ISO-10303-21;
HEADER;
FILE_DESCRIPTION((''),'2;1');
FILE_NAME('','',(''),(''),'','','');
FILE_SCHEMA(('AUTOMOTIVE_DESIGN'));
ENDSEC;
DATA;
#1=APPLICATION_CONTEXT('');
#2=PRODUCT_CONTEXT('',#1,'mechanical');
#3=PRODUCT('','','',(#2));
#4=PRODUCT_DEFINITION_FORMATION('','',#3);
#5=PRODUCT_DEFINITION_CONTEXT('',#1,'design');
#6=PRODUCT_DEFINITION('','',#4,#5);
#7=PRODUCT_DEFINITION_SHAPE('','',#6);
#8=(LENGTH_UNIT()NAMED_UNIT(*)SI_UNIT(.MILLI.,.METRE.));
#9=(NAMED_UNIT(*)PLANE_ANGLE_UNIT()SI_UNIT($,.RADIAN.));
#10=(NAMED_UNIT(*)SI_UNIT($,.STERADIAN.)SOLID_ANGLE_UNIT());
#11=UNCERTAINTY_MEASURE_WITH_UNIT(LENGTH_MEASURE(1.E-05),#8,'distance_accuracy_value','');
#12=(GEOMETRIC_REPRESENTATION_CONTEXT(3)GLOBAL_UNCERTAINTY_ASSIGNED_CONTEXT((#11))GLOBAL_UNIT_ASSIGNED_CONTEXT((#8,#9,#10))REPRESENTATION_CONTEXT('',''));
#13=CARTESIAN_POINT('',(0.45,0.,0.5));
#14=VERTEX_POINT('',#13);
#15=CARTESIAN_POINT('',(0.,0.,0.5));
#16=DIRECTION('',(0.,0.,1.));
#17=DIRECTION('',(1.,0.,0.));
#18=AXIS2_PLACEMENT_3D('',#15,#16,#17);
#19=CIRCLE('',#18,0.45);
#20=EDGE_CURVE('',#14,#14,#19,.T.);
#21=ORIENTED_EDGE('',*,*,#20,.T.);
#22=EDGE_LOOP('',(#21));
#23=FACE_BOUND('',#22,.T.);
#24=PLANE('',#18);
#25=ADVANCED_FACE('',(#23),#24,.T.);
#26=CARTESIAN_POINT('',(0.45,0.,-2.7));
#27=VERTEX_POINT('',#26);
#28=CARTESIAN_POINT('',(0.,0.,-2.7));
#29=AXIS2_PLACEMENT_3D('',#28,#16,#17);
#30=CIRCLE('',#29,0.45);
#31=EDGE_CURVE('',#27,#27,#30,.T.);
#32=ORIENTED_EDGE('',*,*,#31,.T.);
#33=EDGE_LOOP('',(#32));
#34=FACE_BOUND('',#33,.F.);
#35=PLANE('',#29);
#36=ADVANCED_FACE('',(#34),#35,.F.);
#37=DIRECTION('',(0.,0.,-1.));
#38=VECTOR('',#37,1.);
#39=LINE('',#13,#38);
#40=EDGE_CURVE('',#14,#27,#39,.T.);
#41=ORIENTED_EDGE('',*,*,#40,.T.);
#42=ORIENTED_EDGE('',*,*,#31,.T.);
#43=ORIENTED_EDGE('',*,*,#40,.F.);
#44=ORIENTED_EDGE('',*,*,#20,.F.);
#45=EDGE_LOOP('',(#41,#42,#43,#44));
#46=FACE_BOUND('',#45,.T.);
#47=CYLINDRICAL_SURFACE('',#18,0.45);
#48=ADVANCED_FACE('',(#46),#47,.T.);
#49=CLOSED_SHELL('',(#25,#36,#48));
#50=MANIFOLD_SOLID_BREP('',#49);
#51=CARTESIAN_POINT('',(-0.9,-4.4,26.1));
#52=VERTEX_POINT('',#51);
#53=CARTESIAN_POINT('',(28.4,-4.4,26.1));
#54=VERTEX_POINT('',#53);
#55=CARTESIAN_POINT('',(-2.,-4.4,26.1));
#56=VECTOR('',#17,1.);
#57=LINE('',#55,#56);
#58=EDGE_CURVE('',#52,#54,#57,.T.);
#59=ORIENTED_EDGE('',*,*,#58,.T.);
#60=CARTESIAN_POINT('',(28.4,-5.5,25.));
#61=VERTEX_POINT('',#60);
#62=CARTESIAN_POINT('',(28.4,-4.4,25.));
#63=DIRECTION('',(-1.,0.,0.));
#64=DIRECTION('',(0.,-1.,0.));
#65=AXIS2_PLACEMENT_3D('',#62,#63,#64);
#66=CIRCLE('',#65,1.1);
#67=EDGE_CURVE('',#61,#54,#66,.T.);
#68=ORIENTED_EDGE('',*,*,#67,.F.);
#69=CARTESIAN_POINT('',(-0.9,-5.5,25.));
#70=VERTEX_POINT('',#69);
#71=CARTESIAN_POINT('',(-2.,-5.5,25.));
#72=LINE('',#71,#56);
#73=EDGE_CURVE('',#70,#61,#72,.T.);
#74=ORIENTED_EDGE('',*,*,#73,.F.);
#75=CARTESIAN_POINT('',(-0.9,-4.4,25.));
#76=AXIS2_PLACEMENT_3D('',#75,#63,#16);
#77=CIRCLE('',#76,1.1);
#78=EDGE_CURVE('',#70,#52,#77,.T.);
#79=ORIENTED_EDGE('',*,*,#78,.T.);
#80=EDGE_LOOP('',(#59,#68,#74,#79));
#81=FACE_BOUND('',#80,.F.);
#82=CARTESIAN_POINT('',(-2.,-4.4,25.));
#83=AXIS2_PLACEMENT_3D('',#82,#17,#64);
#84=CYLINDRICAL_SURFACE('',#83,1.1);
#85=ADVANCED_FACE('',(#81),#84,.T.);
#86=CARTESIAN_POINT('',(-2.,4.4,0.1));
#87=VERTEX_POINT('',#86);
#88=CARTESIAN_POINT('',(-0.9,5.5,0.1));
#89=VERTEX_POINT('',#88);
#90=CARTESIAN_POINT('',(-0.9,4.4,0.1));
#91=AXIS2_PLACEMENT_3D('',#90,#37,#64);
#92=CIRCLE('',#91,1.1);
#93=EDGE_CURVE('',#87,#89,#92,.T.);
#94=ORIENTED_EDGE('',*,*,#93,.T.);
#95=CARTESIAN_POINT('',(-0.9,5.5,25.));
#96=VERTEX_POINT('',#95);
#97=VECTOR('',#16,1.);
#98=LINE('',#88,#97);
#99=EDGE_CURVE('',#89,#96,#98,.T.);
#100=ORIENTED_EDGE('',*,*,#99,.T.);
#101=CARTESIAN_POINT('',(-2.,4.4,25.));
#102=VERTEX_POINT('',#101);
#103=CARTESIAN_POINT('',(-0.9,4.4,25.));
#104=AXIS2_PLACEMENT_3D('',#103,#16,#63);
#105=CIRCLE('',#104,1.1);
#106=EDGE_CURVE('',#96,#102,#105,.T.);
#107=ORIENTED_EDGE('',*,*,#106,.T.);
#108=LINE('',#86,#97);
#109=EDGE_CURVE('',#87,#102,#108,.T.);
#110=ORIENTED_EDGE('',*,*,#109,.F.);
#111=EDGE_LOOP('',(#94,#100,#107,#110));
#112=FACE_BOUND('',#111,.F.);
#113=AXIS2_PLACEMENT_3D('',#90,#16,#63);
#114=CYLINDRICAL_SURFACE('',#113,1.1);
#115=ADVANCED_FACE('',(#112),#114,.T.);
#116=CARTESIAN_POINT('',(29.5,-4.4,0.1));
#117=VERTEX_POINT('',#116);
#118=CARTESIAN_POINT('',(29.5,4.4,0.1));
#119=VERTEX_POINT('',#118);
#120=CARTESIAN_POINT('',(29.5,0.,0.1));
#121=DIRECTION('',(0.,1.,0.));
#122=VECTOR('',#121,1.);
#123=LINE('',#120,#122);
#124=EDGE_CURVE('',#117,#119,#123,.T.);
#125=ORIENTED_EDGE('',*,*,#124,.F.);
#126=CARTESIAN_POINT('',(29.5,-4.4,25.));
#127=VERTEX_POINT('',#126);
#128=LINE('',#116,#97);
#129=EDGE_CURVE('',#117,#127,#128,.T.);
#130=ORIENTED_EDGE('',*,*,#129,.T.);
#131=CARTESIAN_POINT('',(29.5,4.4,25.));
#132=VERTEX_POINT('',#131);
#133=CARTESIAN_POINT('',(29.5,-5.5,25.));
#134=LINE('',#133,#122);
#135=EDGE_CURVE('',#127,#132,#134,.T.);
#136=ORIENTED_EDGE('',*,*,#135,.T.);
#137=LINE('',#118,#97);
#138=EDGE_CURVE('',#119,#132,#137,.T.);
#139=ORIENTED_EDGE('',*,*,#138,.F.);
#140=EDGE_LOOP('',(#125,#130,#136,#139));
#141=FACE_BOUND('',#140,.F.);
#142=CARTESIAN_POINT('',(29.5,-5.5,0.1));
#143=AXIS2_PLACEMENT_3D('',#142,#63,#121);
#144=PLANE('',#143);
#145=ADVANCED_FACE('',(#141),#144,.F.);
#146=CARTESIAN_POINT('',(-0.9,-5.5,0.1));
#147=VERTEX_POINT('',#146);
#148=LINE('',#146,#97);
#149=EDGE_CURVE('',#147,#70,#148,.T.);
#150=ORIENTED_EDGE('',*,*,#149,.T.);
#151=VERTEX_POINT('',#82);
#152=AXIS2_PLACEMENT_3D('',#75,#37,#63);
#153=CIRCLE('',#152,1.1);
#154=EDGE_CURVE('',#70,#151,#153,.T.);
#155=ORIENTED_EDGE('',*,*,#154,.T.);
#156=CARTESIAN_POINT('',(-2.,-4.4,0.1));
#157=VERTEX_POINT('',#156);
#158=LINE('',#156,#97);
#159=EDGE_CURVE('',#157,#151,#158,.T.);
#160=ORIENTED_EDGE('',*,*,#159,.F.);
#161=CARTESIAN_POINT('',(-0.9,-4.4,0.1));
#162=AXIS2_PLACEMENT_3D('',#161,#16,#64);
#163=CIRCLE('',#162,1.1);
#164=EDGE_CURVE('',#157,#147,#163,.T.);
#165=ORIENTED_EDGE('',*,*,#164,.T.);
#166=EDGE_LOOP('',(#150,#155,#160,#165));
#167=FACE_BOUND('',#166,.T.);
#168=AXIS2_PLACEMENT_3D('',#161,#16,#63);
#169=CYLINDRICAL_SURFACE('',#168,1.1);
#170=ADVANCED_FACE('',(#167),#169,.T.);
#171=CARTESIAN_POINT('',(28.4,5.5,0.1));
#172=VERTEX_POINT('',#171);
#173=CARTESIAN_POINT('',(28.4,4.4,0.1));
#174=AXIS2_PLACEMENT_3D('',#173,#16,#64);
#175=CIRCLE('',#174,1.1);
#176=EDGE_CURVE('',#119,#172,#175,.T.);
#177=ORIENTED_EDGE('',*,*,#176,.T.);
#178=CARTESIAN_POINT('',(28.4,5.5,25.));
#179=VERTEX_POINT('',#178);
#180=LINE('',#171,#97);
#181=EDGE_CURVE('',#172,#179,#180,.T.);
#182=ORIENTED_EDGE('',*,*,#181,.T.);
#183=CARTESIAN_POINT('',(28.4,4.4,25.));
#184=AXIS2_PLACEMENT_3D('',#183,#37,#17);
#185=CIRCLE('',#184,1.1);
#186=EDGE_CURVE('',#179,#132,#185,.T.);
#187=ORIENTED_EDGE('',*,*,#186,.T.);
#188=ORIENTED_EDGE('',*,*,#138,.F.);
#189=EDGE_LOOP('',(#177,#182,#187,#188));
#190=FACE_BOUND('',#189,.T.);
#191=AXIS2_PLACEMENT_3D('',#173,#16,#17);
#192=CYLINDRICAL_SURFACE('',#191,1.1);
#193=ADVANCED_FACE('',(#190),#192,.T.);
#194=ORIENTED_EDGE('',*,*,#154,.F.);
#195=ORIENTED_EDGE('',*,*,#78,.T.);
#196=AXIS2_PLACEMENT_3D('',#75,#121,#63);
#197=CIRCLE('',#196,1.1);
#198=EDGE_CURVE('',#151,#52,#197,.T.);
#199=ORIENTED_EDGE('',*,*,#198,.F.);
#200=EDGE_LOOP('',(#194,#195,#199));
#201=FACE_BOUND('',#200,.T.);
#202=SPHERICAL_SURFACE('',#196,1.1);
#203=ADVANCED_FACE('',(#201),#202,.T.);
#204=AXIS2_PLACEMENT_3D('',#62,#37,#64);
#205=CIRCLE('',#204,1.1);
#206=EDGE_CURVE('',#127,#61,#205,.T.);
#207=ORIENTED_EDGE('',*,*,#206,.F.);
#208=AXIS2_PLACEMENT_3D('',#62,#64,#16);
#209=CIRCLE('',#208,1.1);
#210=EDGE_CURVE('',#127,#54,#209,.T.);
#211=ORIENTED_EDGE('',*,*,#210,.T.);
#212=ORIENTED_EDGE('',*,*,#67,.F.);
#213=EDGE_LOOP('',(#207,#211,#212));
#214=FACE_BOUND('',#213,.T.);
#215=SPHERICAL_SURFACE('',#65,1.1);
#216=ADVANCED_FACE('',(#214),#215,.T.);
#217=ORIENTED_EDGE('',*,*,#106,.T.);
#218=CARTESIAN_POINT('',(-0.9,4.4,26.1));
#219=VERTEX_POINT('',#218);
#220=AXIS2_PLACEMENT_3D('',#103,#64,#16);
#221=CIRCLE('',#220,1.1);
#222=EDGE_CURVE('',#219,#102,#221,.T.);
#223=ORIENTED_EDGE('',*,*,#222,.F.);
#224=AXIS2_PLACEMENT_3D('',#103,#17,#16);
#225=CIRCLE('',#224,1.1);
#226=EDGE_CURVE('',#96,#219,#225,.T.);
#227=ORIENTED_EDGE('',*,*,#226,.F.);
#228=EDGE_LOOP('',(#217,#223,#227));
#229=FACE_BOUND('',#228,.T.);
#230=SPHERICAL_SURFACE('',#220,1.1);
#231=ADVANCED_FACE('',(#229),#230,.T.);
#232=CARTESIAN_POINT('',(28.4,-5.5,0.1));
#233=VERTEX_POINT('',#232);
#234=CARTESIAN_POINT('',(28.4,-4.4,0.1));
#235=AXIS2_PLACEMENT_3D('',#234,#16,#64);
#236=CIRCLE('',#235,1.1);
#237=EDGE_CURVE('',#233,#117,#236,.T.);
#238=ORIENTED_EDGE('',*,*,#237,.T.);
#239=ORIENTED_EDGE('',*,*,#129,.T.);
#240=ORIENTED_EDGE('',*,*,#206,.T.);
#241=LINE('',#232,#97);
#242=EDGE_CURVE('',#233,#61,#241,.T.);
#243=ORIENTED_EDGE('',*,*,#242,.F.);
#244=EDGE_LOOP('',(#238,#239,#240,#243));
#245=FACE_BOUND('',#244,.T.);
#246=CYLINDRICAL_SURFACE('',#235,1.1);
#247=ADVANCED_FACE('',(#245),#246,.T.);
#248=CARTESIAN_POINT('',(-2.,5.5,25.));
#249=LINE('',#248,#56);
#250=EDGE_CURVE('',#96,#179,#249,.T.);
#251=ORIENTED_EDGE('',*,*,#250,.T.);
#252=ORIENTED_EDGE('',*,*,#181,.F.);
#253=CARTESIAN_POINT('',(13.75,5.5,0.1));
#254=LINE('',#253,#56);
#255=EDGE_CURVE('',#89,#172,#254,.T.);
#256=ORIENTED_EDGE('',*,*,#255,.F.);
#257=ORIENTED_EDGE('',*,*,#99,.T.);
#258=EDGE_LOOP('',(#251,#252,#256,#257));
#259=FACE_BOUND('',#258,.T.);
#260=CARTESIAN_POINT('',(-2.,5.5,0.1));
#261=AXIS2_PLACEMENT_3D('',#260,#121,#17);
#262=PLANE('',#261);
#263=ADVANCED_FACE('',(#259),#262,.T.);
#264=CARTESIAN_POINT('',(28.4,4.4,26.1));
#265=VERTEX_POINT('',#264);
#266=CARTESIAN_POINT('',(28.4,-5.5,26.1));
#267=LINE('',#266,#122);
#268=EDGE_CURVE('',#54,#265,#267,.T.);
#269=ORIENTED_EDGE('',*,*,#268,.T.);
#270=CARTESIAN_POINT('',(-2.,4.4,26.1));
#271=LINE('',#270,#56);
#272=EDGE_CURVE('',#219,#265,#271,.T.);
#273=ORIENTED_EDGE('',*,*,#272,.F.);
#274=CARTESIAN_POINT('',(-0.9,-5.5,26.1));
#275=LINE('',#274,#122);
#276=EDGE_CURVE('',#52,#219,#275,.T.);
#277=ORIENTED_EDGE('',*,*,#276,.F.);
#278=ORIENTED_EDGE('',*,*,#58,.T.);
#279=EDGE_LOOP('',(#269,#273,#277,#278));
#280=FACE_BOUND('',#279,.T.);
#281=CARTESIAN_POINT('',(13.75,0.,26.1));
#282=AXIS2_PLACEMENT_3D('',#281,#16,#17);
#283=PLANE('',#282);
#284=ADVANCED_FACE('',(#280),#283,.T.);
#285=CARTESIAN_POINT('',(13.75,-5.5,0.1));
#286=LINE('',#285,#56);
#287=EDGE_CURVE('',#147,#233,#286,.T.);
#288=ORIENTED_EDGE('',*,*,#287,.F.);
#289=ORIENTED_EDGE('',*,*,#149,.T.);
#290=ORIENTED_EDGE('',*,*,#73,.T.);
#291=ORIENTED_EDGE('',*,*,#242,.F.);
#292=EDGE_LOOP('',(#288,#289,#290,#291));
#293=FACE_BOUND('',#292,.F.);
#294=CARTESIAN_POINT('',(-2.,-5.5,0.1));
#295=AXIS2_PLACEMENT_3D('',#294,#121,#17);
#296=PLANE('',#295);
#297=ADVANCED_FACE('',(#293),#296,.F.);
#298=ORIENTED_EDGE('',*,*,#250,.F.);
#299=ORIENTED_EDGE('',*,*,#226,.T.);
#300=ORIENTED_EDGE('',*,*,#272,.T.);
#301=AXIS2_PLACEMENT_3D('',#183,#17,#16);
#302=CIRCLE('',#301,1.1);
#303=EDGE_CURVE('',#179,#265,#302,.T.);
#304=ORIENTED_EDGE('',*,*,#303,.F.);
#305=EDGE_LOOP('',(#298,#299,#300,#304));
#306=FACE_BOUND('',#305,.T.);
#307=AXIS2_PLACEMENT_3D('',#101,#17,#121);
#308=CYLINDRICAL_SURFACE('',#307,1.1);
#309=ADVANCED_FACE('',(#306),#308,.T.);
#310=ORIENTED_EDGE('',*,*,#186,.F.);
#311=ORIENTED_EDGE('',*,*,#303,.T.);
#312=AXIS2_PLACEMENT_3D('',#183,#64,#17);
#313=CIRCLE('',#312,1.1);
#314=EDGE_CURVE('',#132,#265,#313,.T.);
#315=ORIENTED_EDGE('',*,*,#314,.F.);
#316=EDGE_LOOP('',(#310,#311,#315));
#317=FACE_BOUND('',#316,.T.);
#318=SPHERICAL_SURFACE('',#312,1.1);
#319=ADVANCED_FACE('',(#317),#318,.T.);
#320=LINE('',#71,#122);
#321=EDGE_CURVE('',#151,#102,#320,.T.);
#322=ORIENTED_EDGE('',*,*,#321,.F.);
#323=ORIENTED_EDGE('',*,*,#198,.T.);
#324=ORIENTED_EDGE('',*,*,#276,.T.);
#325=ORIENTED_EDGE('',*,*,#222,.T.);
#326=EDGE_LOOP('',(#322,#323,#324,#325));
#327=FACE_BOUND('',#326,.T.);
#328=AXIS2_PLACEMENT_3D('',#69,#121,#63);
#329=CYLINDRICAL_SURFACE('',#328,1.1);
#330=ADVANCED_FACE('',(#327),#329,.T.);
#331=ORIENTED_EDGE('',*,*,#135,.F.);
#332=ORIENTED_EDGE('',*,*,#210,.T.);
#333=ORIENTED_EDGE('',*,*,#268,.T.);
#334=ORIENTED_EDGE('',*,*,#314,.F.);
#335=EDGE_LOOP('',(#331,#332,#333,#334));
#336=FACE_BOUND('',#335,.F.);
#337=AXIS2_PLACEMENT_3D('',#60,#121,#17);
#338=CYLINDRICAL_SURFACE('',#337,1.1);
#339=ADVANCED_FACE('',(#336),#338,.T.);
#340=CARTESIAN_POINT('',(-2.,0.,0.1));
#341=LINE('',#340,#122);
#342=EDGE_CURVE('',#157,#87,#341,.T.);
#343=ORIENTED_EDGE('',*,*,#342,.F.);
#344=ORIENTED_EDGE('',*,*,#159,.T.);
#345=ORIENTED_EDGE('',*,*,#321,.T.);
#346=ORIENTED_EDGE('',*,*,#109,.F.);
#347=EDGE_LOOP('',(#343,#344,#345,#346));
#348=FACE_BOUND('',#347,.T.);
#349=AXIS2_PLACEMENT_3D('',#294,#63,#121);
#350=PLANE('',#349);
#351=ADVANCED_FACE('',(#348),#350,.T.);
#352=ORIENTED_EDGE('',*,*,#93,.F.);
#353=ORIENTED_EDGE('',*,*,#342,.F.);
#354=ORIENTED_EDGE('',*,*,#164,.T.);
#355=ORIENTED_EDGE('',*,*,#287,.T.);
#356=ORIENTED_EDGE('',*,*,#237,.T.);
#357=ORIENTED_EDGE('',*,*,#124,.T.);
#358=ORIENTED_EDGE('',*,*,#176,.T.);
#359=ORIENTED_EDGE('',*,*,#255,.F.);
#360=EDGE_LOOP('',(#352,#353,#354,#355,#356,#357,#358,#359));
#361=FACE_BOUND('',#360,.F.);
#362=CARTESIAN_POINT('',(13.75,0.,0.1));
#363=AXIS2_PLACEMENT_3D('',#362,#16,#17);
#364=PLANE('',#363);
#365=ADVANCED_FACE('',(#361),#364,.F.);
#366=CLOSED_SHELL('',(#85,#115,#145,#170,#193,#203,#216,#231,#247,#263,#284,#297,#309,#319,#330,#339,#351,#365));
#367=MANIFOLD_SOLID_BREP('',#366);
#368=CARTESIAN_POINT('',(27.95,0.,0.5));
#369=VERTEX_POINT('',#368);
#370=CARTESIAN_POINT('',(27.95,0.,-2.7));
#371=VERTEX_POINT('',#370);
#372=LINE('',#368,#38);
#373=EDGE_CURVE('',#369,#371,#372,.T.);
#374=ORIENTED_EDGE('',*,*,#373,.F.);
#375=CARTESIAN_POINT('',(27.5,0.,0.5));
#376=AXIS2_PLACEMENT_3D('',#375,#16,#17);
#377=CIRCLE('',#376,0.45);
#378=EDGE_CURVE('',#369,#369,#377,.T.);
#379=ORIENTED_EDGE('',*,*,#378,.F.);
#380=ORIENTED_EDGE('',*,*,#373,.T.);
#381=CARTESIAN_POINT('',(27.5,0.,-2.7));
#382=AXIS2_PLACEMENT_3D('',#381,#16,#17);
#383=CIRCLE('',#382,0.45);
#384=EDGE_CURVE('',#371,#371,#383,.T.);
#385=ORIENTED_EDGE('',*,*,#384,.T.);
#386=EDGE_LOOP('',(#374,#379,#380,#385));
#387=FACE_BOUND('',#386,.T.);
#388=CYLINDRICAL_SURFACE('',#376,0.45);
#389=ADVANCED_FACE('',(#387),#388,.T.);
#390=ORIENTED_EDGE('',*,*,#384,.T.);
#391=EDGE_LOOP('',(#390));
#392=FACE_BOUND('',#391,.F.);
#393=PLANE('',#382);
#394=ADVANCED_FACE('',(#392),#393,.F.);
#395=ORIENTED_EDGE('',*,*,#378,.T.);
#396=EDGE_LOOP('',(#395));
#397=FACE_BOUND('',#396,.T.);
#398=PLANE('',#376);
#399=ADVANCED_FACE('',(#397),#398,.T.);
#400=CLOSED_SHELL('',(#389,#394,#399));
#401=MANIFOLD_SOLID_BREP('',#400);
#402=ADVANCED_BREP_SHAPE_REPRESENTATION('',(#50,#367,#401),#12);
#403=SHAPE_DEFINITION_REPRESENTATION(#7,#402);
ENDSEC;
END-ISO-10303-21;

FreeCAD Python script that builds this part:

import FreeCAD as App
import Part
import Sketcher

V = App.Vector


def edges_at(feature, points):
    """Names of the edges that pass closest to the given points."""
    edges = feature.Shape.Edges
    near = lambda p: min(range(len(edges)), key=lambda i: edges[i].distToShape(Part.Vertex(*p))[0])
    return sorted({f"Edge{near(p) + 1}" for p in points})


def add_polygon(sketch, points):
    """Adds a closed chain of lines whose ends are joined by coincident constraints."""
    first, n = sketch.GeometryCount, len(points)
    for a, b in zip(points, points[1:] + points[:1]):
        sketch.addGeometry(Part.LineSegment(App.Vector(*a, 0), App.Vector(*b, 0)), False)
    for i in range(n):
        sketch.addConstraint(Sketcher.Constraint("Coincident", first + i, 2, first + (i + 1) % n, 1))

doc = App.newDocument("Part")
params = doc.addObject("Spreadsheet::Sheet", "Params")
for row, (alias, value) in enumerate([
    ("sketch1_height", "11 mm"),
    ("sketch1_width", "31.5 mm"),
    ("pad1_length", "26 mm"),
    ("fillet_radius", "1.1 mm"),
    ("sketch2_diameter", "0.9 mm"),
    ("pad2_length", "3.2 mm"),
], start=1):
    params.set(f"A{row}", alias)
    params.set(f"B{row}", "=" + value)
    params.setAlias(f"B{row}", alias)

body = doc.addObject("PartDesign::Body", "Body")

sketch1 = body.newObject("Sketcher::SketchObject", "Sketch")
sketch1.AttachmentSupport = (doc.getObject("XY_Plane"), [""])
sketch1.MapMode = "FlatFace"
sketch1.AttachmentOffset = App.Placement(V(0, 0, 0.1), App.Rotation())
add_polygon(sketch1, [(-2, 6), (-2, -6), (30, -6), (30, 6)])
sketch1.addConstraint(Sketcher.Constraint("Vertical", 0))
sketch1.addConstraint(Sketcher.Constraint("Horizontal", 1))
sketch1.addConstraint(Sketcher.Constraint("Vertical", 2))
sketch1.addConstraint(Sketcher.Constraint("Horizontal", 3))
sketch1.addConstraint(Sketcher.Constraint("DistanceY", 0, 2, 0, 1, 11.0))
sketch1.addConstraint(Sketcher.Constraint("DistanceX", 1, 1, 1, 2, 31.5))
sketch1.addConstraint(Sketcher.Constraint("DistanceX", 0, 2, -1, 1, 2.0))
sketch1.addConstraint(Sketcher.Constraint("DistanceY", 0, 2, -1, 1, 5.5))
sketch1.setExpression("Constraints[8]", "Params.sketch1_height")
sketch1.setExpression("Constraints[9]", "Params.sketch1_width")
pad1 = body.newObject("PartDesign::Pad", "Pad")
pad1.Profile = sketch1
pad1.setExpression("Length", "Params.pad1_length")
doc.recompute()

fillet = body.newObject("PartDesign::Fillet", "Fillet")
fillet.Base = (pad1, edges_at(pad1, [
    (-2, 0, 26.1),
    (-2, -5.5, 13.1),
    (13.75, -5.5, 26.1),
    (29.5, -5.5, 13.1),
    (29.5, 0, 26.1),
    (29.5, 5.5, 13.1),
    (13.75, 5.5, 26.1),
    (-2, 5.5, 13.1),
]))
fillet.setExpression("Radius", "Params.fillet_radius")
body2 = doc.addObject("PartDesign::Body", "Body001")
body2.AllowCompound = True

sketch2 = body2.newObject("Sketcher::SketchObject", "Sketch001")
sketch2.AttachmentSupport = (doc.getObject("XY_Plane001"), [""])
sketch2.MapMode = "FlatFace"
sketch2.AttachmentOffset = App.Placement(V(0, 0, 0.5), App.Rotation())
sketch2.addGeometry(Part.Circle(V(0, 0, 0), V(0, 0, 1), 0.45), False)
sketch2.addGeometry(Part.Circle(V(27.5, 0, 0), V(0, 0, 1), 0.45), False)
sketch2.addConstraint(Sketcher.Constraint("Coincident", 0, 3, -1, 1))
sketch2.addConstraint(Sketcher.Constraint("Equal", 0, 1))
sketch2.addConstraint(Sketcher.Constraint("PointOnObject", 1, 3, -1))
sketch2.addConstraint(Sketcher.Constraint("Diameter", 0, 0.9))
sketch2.addConstraint(Sketcher.Constraint("DistanceX", -1, 1, 1, 3, 27.5))
sketch2.setExpression("Constraints[3]", "Params.sketch2_diameter")
pad2 = body2.newObject("PartDesign::Pad", "Pad001")
pad2.Profile = sketch2
pad2.setExpression("Length", "Params.pad2_length")
pad2.Reversed = True

doc.recompute()
